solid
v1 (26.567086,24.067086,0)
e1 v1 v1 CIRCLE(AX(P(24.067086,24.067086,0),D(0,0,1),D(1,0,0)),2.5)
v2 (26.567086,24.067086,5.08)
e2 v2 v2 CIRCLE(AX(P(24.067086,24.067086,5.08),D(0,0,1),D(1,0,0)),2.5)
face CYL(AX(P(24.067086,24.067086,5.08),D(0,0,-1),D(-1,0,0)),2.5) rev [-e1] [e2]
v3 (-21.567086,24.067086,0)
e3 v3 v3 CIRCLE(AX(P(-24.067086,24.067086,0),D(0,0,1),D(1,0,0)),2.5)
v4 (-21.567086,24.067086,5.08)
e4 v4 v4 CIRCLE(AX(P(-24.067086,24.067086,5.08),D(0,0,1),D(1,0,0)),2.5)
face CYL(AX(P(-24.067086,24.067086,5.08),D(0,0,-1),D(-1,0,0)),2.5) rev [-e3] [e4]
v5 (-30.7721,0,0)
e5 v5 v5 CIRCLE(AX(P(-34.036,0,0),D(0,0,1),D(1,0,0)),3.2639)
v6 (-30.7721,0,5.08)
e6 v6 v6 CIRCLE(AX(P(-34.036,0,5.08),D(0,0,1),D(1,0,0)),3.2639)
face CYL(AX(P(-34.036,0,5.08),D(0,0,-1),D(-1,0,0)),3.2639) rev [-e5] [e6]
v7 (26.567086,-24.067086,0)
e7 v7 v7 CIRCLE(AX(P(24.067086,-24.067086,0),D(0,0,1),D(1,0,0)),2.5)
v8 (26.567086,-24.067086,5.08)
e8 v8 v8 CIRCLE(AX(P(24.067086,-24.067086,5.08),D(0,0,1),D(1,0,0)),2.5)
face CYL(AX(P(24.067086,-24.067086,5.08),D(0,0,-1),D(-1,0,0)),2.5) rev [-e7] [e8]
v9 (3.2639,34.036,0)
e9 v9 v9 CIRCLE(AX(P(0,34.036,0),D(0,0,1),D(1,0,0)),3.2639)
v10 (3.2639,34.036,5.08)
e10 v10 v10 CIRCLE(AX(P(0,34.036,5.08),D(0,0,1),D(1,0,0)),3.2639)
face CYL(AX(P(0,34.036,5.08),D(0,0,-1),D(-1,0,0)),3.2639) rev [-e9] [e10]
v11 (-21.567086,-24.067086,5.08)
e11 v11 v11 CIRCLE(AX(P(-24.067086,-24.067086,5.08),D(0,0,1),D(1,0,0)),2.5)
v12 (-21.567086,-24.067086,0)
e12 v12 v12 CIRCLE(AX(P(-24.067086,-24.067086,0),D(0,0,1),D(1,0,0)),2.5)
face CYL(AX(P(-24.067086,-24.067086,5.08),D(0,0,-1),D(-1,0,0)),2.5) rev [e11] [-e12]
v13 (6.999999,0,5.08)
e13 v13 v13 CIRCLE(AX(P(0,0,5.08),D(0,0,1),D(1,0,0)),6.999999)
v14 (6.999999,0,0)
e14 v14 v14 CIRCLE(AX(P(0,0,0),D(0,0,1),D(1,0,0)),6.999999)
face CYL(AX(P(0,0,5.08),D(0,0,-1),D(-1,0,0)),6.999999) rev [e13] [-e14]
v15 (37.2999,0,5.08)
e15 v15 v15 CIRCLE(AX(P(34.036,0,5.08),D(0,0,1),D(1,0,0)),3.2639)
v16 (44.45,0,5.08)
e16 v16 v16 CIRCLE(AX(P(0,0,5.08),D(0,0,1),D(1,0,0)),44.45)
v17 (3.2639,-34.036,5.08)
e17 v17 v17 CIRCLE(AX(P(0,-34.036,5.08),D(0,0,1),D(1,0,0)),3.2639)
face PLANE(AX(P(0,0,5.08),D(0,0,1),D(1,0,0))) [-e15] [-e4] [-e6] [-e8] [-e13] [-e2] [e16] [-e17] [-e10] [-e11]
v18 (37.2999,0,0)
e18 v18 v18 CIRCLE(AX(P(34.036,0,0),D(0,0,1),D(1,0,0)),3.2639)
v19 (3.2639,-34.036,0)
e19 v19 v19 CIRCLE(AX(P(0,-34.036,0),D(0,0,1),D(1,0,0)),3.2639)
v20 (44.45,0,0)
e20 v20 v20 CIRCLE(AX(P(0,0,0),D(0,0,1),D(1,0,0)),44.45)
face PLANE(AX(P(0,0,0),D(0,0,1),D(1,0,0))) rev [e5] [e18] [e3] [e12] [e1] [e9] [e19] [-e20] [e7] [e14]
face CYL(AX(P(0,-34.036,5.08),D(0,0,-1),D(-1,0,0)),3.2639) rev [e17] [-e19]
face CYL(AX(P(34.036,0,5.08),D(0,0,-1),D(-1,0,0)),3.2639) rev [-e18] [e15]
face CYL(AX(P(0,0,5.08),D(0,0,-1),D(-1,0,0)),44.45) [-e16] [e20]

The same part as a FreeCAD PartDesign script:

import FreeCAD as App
import Part
import Sketcher
Q = App.Units.Quantity

doc = App.newDocument("Part")
body = doc.addObject("PartDesign::Body", "Body")

sketch1 = doc.addObject("Sketcher::SketchObject", "Sketch")
body.addObject(sketch1)
sketch1.AttachmentSupport = (doc.XY_Plane, [""])
sketch1.MapMode = "FlatFace"
sketch1.addGeometry([
    Part.Circle(App.Vector(0, 0, 0), App.Vector(0, 0, 1), 44.5),
    Part.Circle(App.Vector(-24.1, -24.1, 0), App.Vector(0, 0, 1), 2.5),
    Part.Circle(App.Vector(0, -34, 0), App.Vector(0, 0, 1), 3.3),
    Part.Circle(App.Vector(24.1, -24.1, 0), App.Vector(0, 0, 1), 2.5),
    Part.Circle(App.Vector(-34, 0, 0), App.Vector(0, 0, 1), 3.3),
    Part.Circle(App.Vector(-24.1, 24.1, 0), App.Vector(0, 0, 1), 2.5),
    Part.Circle(App.Vector(0, 0, 0), App.Vector(0, 0, 1), 7),
    Part.Circle(App.Vector(34, 0, 0), App.Vector(0, 0, 1), 3.3),
    Part.Circle(App.Vector(0, 34, 0), App.Vector(0, 0, 1), 3.3),
    Part.Circle(App.Vector(24.1, 24.1, 0), App.Vector(0, 0, 1), 2.5),
], False)
sketch1.addConstraint([
    Sketcher.Constraint("Coincident", 0, 3, -1, 1),
    Sketcher.Constraint("Coincident", 6, 3, -1, 1),
    Sketcher.Constraint("Equal", 1, 3),
    Sketcher.Constraint("Equal", 2, 4),
    Sketcher.Constraint("Equal", 3, 5),
    Sketcher.Constraint("Equal", 4, 7),
    Sketcher.Constraint("Equal", 7, 8),
    Sketcher.Constraint("Equal", 5, 9),
    Sketcher.Constraint("Symmetric", 3, 3, 5, 3, -1, 1),
    Sketcher.Constraint("Symmetric", 4, 3, 7, 3, -1, 1),
    Sketcher.Constraint("Symmetric", 2, 3, 8, 3, -1, 1),
    Sketcher.Constraint("Symmetric", 1, 3, 9, 3, -1, 1),
    Sketcher.Constraint("Symmetric", 1, 3, 3, 3, -2),
    Sketcher.Constraint("PointOnObject", 2, 3, -2),
    Sketcher.Constraint("PointOnObject", 4, 3, -1),
    Sketcher.Constraint("Diameter", 0, Q("3.5 in")),
    Sketcher.Constraint("Diameter", 2, Q("0.257 in")),
    Sketcher.Constraint("Diameter", 1, 5.0),
    Sketcher.Constraint("DistanceY", 2, 3, -1, 1, Q("1.34 in")),
    Sketcher.Constraint("DistanceX", 4, 3, -1, 1, Q("1.34 in")),
    Sketcher.Constraint("Diameter", 6, 13.999997),
    Sketcher.Constraint("DistanceX", 1, 3, -1, 1, 24.067086),
    Sketcher.Constraint("DistanceY", 1, 3, -1, 1, 24.067086),
])
pad1 = doc.addObject("PartDesign::Pad", "Pad")
body.addObject(pad1)
pad1.Profile = sketch1
pad1.Length = Q("0.2 in")

doc.recompute()
